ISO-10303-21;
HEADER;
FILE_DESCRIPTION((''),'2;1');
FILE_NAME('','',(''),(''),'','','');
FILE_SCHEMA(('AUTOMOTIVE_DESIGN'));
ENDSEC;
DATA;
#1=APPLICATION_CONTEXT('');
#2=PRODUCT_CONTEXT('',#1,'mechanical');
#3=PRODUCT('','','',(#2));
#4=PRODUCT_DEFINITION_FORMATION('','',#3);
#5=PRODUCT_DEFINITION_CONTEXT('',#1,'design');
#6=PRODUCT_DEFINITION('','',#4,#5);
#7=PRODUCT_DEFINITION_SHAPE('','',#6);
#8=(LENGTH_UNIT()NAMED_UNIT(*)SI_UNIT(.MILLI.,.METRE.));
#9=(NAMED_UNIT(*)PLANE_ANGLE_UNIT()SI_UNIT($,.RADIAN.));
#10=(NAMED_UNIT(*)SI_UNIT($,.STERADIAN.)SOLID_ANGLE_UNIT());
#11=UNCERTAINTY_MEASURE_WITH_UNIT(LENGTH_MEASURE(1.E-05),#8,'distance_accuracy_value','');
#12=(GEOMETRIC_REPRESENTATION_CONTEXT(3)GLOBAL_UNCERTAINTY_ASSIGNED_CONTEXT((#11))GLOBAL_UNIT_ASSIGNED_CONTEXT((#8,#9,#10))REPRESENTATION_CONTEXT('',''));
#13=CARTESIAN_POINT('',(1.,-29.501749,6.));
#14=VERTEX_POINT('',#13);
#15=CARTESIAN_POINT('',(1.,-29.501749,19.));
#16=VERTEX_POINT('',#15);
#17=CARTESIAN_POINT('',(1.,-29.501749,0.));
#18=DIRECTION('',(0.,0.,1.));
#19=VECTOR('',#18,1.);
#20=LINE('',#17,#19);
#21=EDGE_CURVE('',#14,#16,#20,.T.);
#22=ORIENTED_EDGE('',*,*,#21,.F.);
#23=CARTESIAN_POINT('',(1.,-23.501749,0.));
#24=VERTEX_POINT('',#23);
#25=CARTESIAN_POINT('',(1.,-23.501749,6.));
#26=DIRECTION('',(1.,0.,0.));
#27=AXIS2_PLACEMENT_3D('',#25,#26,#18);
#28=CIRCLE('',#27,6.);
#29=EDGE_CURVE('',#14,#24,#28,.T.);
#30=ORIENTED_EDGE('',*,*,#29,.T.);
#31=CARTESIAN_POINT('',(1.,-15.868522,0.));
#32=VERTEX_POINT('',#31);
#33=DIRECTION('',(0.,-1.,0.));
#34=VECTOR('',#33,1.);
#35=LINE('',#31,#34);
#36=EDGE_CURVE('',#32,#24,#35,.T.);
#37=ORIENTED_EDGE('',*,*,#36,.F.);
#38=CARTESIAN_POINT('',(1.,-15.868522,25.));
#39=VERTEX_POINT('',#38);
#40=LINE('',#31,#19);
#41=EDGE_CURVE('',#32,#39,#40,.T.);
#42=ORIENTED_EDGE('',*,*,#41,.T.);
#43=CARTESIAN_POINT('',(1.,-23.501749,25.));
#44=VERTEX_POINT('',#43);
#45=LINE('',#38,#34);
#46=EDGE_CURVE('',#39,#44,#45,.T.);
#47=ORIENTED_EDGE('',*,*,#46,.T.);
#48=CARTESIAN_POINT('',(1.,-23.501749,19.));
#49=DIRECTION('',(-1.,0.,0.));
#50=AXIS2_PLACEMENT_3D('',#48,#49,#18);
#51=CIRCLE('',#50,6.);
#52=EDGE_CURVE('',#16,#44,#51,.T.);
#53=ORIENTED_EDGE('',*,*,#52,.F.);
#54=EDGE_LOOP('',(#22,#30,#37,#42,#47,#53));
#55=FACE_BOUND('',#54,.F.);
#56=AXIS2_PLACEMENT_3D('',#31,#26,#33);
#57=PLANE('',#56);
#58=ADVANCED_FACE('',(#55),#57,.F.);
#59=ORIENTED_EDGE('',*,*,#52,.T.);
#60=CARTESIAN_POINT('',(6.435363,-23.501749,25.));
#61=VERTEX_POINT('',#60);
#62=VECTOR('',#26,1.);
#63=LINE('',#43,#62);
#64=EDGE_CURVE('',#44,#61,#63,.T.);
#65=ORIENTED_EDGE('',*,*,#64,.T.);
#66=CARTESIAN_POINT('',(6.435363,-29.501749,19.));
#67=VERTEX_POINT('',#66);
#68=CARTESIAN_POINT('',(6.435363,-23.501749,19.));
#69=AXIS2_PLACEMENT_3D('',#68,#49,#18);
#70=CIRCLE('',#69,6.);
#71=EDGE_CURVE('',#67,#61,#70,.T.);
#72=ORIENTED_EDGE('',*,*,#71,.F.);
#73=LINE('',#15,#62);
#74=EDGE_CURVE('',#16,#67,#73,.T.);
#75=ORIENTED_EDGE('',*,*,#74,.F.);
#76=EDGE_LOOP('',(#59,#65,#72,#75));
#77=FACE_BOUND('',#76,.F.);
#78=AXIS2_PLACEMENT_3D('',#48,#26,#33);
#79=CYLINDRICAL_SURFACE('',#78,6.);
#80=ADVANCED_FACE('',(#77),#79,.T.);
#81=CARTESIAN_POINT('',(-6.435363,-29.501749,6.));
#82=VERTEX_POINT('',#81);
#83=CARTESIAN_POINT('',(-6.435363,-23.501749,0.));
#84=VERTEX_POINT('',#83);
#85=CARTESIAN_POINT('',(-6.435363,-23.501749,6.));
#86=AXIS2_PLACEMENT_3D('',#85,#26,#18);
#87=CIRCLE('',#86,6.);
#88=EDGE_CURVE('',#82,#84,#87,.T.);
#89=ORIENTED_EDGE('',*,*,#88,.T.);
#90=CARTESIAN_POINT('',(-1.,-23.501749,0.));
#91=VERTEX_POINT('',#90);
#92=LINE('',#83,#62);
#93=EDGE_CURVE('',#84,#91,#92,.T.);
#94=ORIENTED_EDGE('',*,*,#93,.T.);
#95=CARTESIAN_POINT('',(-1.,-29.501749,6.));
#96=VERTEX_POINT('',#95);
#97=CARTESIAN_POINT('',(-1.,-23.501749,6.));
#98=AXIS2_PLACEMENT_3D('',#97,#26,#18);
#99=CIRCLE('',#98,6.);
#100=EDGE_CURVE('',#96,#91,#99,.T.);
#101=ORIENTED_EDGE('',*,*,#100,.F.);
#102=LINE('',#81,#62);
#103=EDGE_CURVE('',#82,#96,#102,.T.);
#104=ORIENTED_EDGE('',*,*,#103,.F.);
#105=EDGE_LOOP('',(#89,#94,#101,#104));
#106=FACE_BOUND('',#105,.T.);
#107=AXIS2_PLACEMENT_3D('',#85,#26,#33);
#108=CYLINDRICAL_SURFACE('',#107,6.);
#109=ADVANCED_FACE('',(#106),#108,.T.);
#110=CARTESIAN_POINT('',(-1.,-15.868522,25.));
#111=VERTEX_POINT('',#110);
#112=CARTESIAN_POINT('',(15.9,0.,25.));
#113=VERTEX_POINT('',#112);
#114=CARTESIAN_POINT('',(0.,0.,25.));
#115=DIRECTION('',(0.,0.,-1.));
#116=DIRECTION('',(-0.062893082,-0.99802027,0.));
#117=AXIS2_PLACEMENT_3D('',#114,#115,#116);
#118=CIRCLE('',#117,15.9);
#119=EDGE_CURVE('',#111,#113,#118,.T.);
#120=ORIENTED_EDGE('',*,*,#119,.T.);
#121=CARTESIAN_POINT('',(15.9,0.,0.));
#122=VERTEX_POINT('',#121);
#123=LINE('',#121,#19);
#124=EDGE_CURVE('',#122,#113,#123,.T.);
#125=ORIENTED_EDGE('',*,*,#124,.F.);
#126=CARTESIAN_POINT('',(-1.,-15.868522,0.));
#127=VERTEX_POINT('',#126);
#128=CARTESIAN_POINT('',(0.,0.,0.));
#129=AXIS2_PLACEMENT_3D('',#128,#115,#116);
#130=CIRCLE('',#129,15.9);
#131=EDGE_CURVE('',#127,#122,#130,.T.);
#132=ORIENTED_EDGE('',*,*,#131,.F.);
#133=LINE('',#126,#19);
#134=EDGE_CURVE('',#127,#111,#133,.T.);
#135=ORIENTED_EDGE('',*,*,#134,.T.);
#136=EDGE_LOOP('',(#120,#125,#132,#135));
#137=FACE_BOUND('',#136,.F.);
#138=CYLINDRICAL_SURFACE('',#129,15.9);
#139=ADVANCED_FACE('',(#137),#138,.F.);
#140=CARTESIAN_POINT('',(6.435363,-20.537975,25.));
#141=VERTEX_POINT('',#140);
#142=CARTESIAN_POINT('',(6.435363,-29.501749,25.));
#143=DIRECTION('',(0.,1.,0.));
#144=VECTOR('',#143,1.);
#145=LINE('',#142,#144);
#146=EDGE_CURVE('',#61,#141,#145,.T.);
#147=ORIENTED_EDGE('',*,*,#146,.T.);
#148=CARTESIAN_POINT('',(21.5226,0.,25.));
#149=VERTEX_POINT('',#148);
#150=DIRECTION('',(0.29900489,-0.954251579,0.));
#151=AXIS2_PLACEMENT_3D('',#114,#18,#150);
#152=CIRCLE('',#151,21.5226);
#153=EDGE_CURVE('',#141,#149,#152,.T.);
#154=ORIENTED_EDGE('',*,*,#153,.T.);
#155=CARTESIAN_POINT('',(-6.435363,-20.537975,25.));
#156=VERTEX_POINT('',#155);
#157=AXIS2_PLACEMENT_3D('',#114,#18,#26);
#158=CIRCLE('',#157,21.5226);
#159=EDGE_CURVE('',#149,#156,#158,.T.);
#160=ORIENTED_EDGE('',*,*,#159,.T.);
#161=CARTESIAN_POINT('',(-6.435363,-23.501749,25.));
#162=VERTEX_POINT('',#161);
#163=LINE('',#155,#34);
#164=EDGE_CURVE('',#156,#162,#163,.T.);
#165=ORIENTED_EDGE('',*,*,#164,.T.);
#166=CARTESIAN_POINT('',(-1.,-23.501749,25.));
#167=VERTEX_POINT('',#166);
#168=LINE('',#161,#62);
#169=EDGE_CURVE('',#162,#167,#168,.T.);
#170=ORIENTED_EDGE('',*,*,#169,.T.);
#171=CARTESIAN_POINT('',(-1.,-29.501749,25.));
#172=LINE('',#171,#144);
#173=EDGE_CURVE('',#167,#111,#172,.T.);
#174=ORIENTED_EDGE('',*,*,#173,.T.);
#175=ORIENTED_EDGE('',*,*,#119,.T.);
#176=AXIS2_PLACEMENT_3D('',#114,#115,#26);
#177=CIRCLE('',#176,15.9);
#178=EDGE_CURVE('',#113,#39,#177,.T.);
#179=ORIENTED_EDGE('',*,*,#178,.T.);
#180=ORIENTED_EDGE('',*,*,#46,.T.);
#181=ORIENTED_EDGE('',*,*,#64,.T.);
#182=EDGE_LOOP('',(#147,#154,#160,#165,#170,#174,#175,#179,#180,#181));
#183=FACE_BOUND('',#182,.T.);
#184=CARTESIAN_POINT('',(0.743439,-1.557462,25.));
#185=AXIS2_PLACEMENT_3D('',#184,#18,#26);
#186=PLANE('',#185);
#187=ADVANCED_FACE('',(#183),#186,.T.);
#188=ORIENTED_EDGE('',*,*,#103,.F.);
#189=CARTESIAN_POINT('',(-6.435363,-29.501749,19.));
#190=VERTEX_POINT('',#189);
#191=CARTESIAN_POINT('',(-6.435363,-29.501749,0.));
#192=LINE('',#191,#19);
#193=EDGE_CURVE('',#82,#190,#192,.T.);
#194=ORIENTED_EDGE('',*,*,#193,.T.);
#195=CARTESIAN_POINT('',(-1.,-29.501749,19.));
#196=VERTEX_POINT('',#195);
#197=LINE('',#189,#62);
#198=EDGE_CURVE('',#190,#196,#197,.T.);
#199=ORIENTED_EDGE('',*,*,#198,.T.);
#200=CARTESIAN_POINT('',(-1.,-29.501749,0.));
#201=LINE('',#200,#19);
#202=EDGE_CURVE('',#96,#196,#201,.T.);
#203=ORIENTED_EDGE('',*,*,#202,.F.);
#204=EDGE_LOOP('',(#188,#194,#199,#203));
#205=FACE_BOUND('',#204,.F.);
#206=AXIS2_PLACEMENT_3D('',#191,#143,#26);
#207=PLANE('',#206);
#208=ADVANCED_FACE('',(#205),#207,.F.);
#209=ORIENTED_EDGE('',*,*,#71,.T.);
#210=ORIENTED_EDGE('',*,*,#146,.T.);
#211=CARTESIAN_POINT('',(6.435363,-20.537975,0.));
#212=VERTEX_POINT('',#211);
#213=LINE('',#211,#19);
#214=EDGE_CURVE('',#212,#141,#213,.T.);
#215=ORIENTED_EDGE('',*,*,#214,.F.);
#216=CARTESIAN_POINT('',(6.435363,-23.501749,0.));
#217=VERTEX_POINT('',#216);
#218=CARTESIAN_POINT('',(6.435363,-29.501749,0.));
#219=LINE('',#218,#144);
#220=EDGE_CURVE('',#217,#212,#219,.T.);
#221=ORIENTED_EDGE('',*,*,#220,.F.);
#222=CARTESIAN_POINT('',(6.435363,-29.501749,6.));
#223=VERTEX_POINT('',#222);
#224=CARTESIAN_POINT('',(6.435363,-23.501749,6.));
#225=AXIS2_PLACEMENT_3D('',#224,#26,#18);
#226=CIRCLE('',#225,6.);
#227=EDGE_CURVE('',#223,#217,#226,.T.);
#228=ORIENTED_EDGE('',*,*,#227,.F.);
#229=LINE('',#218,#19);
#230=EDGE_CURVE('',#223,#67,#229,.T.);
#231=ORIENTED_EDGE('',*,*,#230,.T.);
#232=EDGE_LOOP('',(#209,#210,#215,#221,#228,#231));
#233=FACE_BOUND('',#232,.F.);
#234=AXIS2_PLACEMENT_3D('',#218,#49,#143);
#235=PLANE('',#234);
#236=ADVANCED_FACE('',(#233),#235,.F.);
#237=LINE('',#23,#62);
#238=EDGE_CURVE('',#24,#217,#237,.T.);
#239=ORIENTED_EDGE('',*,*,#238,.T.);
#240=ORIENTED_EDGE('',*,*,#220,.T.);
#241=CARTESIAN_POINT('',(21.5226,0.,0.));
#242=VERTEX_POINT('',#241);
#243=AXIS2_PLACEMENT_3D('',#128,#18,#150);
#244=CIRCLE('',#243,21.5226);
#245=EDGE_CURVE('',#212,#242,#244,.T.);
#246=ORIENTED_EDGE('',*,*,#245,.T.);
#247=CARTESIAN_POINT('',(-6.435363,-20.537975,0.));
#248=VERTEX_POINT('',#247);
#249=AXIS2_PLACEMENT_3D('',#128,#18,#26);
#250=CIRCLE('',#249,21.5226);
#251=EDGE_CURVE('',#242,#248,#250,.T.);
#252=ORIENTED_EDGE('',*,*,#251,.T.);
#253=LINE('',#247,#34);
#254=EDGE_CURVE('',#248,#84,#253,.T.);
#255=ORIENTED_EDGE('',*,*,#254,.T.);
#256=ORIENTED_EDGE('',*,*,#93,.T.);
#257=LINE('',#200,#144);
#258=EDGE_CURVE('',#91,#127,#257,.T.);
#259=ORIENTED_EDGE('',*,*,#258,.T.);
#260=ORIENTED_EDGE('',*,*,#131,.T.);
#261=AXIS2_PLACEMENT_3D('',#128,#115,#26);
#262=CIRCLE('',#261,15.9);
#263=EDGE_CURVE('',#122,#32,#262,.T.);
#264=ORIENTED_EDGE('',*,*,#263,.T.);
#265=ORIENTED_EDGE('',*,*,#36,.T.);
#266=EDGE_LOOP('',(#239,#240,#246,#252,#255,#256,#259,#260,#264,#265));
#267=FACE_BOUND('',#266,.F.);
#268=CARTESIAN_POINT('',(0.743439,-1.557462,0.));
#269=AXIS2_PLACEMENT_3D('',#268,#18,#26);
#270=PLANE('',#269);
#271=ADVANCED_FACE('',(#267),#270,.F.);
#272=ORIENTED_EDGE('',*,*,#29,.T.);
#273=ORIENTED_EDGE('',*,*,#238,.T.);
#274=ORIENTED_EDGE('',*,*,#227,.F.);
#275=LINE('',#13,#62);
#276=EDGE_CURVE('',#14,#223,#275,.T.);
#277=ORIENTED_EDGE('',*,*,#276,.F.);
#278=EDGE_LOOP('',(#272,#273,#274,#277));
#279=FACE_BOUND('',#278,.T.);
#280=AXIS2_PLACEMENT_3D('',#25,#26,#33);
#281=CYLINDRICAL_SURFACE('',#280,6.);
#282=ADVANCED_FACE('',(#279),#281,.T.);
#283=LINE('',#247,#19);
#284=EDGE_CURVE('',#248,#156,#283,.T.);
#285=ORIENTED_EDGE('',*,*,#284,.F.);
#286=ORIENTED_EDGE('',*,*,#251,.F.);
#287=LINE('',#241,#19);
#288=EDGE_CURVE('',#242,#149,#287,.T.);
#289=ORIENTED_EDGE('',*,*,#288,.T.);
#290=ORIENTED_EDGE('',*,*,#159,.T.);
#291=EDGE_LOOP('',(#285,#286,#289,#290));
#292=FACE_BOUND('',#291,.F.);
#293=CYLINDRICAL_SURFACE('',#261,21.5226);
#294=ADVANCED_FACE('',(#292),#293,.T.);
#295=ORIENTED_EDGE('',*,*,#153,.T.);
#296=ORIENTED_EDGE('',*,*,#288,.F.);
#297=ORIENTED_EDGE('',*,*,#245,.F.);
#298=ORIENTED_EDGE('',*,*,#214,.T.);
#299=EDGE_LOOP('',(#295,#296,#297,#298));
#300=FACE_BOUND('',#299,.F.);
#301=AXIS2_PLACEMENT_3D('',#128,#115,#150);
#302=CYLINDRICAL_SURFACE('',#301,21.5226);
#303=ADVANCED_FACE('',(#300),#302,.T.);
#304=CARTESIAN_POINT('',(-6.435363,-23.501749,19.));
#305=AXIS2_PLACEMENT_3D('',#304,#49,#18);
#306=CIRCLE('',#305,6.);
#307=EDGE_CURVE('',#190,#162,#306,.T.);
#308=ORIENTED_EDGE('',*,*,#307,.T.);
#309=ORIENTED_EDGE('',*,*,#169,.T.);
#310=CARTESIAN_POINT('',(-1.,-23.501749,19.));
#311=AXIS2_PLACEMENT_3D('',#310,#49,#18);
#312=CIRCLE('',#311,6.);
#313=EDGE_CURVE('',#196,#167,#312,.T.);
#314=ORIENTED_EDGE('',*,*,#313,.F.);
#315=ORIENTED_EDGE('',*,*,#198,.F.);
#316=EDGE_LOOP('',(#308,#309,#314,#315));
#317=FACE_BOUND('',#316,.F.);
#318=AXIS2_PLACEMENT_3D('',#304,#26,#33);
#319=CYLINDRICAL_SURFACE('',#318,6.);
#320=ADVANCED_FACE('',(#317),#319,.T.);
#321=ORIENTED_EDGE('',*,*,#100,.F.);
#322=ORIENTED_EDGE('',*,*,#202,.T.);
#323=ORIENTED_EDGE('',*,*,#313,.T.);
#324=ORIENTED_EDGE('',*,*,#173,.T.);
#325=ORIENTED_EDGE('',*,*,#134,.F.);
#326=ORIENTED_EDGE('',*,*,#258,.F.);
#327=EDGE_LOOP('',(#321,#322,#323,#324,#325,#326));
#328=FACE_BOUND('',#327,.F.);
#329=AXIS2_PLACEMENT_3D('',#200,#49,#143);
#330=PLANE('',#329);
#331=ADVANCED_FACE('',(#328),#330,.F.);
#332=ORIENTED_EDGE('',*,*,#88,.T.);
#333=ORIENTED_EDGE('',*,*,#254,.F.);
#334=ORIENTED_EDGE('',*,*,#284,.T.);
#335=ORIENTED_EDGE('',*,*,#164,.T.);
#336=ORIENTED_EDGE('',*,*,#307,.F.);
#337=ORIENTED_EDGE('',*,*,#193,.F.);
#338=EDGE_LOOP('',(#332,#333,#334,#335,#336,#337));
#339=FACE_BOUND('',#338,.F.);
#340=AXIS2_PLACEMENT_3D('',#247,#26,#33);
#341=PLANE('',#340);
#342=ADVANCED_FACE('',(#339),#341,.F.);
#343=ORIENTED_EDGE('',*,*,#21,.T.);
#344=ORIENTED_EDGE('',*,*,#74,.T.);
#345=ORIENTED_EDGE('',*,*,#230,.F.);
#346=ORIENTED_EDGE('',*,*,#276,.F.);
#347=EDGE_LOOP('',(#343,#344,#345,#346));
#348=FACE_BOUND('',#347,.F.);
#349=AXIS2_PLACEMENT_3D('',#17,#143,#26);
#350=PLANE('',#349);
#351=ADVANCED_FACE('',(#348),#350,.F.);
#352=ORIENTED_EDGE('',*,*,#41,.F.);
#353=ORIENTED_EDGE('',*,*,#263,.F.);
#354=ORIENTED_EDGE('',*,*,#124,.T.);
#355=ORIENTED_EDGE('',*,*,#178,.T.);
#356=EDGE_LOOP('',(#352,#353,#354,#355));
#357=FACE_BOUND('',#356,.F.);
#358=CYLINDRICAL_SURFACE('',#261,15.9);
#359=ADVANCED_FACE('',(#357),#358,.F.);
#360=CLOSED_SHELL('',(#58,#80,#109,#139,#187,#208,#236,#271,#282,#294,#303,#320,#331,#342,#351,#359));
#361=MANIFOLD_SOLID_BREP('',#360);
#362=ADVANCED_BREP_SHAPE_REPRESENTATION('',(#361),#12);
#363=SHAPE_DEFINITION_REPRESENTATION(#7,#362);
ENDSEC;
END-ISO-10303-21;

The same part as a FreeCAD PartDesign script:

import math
import FreeCAD as App
import Part
import Sketcher


def edges_at(feature, points):
    """Names of the edges that pass closest to the given points."""
    edges = feature.Shape.Edges
    near = lambda p: min(range(len(edges)), key=lambda i: edges[i].distToShape(Part.Vertex(*p))[0])
    return sorted({f"Edge{near(p) + 1}" for p in points})

doc = App.newDocument("Part")
params = doc.addObject("Spreadsheet::Sheet", "Params")
for row, (alias, value) in enumerate([
    ("sketch1_radius", "15.9 mm"),
    ("pad1_length", "25 mm"),
    ("fillet_radius", "6 mm"),
], start=1):
    params.set(f"A{row}", alias)
    params.set(f"B{row}", "=" + value)
    params.setAlias(f"B{row}", alias)

body = doc.addObject("PartDesign::Body", "Body")

# Sketch on XY plane
sketch1 = doc.addObject("Sketcher::SketchObject", "Sketch")
body.addObject(sketch1)
sketch1.AttachmentSupport = (doc.XY_Plane, [""])
sketch1.MapMode = "FlatFace"
sketch1.addGeometry([
    Part.ArcOfCircle(Part.Circle(App.Vector(0, 0, 0), App.Vector(0, 0, 1), 16), math.radians(0), math.radians(266)),  # 0
    Part.ArcOfCircle(Part.Circle(App.Vector(0, 0, 0), App.Vector(0, 0, 1), 16), math.radians(-86), math.radians(0)),  # 1
    Part.LineSegment(App.Vector(1, -16, 0), App.Vector(1, -30, 0)),  # 2
    Part.LineSegment(App.Vector(1, -30, 0), App.Vector(6, -30, 0)),  # 3
    Part.LineSegment(App.Vector(6, -30, 0), App.Vector(6, -21, 0)),  # 4
    Part.ArcOfCircle(Part.Circle(App.Vector(0, 0, 0), App.Vector(0, 0, 1), 22), math.radians(-73), math.radians(0)),  # 5
    Part.ArcOfCircle(Part.Circle(App.Vector(0, 0, 0), App.Vector(0, 0, 1), 22), math.radians(0), math.radians(253)),  # 6
    Part.LineSegment(App.Vector(-6, -21, 0), App.Vector(-6, -30, 0)),  # 7
    Part.LineSegment(App.Vector(-6, -30, 0), App.Vector(-1, -30, 0)),  # 8
    Part.LineSegment(App.Vector(-1, -30, 0), App.Vector(-1, -16, 0)),  # 9
], False)
sketch1.addConstraint([
    Sketcher.Constraint("Tangent", 0, 1, 1, 2),
    Sketcher.Constraint("Coincident", 1, 1, 2, 1),
    Sketcher.Constraint("Coincident", 2, 2, 3, 1),
    Sketcher.Constraint("Coincident", 3, 2, 4, 1),
    Sketcher.Constraint("Coincident", 4, 2, 5, 1),
    Sketcher.Constraint("Tangent", 5, 2, 6, 1),
    Sketcher.Constraint("Coincident", 6, 2, 7, 1),
    Sketcher.Constraint("Coincident", 7, 2, 8, 1),
    Sketcher.Constraint("Coincident", 8, 2, 9, 1),
    Sketcher.Constraint("Coincident", 9, 2, 0, 2),
    Sketcher.Constraint("Vertical", 2),
    Sketcher.Constraint("Horizontal", 3),
    Sketcher.Constraint("Vertical", 4),
    Sketcher.Constraint("Vertical", 7),
    Sketcher.Constraint("Horizontal", 8),
    Sketcher.Constraint("Vertical", 9),
    Sketcher.Constraint("Coincident", 0, 3, -1, 1),
    Sketcher.Constraint("Coincident", 5, 3, -1, 1),
    Sketcher.Constraint("Equal", 0, 1),
    Sketcher.Constraint("Equal", 5, 6),
    Sketcher.Constraint("Symmetric", 3, 2, 7, 2, -2),
    Sketcher.Constraint("PointOnObject", 0, 1, -1),
    Sketcher.Constraint("PointOnObject", 5, 2, -1),
    Sketcher.Constraint("Horizontal", 1, 1, 9, 2),
    Sketcher.Constraint("Radius", 0, 15.9),
    Sketcher.Constraint("DistanceX", -1, 1, 1, 1, 1.0),
    Sketcher.Constraint("Radius", 5, 21.5226),
    Sketcher.Constraint("DistanceX", 3, 1, 3, 2, 5.435363),
    Sketcher.Constraint("DistanceY", 2, 2, 2, 1, 13.633227),
])
sketch1.setExpression("Constraints[24]", "Params.sketch1_radius")
pad1 = doc.addObject("PartDesign::Pad", "Pad")
body.addObject(pad1)
pad1.Profile = sketch1
pad1.setExpression("Length", "Params.pad1_length")
doc.recompute()

fillet = doc.addObject("PartDesign::Fillet", "Fillet")
body.addObject(fillet)
fillet.Base = (pad1, edges_at(pad1, [
    (3.718, -29.502, 25),
    (-3.718, -29.502, 25),
    (3.718, -29.502, 0),
    (-3.718, -29.502, 0),
]))
fillet.setExpression("Radius", "Params.fillet_radius")

doc.recompute()
